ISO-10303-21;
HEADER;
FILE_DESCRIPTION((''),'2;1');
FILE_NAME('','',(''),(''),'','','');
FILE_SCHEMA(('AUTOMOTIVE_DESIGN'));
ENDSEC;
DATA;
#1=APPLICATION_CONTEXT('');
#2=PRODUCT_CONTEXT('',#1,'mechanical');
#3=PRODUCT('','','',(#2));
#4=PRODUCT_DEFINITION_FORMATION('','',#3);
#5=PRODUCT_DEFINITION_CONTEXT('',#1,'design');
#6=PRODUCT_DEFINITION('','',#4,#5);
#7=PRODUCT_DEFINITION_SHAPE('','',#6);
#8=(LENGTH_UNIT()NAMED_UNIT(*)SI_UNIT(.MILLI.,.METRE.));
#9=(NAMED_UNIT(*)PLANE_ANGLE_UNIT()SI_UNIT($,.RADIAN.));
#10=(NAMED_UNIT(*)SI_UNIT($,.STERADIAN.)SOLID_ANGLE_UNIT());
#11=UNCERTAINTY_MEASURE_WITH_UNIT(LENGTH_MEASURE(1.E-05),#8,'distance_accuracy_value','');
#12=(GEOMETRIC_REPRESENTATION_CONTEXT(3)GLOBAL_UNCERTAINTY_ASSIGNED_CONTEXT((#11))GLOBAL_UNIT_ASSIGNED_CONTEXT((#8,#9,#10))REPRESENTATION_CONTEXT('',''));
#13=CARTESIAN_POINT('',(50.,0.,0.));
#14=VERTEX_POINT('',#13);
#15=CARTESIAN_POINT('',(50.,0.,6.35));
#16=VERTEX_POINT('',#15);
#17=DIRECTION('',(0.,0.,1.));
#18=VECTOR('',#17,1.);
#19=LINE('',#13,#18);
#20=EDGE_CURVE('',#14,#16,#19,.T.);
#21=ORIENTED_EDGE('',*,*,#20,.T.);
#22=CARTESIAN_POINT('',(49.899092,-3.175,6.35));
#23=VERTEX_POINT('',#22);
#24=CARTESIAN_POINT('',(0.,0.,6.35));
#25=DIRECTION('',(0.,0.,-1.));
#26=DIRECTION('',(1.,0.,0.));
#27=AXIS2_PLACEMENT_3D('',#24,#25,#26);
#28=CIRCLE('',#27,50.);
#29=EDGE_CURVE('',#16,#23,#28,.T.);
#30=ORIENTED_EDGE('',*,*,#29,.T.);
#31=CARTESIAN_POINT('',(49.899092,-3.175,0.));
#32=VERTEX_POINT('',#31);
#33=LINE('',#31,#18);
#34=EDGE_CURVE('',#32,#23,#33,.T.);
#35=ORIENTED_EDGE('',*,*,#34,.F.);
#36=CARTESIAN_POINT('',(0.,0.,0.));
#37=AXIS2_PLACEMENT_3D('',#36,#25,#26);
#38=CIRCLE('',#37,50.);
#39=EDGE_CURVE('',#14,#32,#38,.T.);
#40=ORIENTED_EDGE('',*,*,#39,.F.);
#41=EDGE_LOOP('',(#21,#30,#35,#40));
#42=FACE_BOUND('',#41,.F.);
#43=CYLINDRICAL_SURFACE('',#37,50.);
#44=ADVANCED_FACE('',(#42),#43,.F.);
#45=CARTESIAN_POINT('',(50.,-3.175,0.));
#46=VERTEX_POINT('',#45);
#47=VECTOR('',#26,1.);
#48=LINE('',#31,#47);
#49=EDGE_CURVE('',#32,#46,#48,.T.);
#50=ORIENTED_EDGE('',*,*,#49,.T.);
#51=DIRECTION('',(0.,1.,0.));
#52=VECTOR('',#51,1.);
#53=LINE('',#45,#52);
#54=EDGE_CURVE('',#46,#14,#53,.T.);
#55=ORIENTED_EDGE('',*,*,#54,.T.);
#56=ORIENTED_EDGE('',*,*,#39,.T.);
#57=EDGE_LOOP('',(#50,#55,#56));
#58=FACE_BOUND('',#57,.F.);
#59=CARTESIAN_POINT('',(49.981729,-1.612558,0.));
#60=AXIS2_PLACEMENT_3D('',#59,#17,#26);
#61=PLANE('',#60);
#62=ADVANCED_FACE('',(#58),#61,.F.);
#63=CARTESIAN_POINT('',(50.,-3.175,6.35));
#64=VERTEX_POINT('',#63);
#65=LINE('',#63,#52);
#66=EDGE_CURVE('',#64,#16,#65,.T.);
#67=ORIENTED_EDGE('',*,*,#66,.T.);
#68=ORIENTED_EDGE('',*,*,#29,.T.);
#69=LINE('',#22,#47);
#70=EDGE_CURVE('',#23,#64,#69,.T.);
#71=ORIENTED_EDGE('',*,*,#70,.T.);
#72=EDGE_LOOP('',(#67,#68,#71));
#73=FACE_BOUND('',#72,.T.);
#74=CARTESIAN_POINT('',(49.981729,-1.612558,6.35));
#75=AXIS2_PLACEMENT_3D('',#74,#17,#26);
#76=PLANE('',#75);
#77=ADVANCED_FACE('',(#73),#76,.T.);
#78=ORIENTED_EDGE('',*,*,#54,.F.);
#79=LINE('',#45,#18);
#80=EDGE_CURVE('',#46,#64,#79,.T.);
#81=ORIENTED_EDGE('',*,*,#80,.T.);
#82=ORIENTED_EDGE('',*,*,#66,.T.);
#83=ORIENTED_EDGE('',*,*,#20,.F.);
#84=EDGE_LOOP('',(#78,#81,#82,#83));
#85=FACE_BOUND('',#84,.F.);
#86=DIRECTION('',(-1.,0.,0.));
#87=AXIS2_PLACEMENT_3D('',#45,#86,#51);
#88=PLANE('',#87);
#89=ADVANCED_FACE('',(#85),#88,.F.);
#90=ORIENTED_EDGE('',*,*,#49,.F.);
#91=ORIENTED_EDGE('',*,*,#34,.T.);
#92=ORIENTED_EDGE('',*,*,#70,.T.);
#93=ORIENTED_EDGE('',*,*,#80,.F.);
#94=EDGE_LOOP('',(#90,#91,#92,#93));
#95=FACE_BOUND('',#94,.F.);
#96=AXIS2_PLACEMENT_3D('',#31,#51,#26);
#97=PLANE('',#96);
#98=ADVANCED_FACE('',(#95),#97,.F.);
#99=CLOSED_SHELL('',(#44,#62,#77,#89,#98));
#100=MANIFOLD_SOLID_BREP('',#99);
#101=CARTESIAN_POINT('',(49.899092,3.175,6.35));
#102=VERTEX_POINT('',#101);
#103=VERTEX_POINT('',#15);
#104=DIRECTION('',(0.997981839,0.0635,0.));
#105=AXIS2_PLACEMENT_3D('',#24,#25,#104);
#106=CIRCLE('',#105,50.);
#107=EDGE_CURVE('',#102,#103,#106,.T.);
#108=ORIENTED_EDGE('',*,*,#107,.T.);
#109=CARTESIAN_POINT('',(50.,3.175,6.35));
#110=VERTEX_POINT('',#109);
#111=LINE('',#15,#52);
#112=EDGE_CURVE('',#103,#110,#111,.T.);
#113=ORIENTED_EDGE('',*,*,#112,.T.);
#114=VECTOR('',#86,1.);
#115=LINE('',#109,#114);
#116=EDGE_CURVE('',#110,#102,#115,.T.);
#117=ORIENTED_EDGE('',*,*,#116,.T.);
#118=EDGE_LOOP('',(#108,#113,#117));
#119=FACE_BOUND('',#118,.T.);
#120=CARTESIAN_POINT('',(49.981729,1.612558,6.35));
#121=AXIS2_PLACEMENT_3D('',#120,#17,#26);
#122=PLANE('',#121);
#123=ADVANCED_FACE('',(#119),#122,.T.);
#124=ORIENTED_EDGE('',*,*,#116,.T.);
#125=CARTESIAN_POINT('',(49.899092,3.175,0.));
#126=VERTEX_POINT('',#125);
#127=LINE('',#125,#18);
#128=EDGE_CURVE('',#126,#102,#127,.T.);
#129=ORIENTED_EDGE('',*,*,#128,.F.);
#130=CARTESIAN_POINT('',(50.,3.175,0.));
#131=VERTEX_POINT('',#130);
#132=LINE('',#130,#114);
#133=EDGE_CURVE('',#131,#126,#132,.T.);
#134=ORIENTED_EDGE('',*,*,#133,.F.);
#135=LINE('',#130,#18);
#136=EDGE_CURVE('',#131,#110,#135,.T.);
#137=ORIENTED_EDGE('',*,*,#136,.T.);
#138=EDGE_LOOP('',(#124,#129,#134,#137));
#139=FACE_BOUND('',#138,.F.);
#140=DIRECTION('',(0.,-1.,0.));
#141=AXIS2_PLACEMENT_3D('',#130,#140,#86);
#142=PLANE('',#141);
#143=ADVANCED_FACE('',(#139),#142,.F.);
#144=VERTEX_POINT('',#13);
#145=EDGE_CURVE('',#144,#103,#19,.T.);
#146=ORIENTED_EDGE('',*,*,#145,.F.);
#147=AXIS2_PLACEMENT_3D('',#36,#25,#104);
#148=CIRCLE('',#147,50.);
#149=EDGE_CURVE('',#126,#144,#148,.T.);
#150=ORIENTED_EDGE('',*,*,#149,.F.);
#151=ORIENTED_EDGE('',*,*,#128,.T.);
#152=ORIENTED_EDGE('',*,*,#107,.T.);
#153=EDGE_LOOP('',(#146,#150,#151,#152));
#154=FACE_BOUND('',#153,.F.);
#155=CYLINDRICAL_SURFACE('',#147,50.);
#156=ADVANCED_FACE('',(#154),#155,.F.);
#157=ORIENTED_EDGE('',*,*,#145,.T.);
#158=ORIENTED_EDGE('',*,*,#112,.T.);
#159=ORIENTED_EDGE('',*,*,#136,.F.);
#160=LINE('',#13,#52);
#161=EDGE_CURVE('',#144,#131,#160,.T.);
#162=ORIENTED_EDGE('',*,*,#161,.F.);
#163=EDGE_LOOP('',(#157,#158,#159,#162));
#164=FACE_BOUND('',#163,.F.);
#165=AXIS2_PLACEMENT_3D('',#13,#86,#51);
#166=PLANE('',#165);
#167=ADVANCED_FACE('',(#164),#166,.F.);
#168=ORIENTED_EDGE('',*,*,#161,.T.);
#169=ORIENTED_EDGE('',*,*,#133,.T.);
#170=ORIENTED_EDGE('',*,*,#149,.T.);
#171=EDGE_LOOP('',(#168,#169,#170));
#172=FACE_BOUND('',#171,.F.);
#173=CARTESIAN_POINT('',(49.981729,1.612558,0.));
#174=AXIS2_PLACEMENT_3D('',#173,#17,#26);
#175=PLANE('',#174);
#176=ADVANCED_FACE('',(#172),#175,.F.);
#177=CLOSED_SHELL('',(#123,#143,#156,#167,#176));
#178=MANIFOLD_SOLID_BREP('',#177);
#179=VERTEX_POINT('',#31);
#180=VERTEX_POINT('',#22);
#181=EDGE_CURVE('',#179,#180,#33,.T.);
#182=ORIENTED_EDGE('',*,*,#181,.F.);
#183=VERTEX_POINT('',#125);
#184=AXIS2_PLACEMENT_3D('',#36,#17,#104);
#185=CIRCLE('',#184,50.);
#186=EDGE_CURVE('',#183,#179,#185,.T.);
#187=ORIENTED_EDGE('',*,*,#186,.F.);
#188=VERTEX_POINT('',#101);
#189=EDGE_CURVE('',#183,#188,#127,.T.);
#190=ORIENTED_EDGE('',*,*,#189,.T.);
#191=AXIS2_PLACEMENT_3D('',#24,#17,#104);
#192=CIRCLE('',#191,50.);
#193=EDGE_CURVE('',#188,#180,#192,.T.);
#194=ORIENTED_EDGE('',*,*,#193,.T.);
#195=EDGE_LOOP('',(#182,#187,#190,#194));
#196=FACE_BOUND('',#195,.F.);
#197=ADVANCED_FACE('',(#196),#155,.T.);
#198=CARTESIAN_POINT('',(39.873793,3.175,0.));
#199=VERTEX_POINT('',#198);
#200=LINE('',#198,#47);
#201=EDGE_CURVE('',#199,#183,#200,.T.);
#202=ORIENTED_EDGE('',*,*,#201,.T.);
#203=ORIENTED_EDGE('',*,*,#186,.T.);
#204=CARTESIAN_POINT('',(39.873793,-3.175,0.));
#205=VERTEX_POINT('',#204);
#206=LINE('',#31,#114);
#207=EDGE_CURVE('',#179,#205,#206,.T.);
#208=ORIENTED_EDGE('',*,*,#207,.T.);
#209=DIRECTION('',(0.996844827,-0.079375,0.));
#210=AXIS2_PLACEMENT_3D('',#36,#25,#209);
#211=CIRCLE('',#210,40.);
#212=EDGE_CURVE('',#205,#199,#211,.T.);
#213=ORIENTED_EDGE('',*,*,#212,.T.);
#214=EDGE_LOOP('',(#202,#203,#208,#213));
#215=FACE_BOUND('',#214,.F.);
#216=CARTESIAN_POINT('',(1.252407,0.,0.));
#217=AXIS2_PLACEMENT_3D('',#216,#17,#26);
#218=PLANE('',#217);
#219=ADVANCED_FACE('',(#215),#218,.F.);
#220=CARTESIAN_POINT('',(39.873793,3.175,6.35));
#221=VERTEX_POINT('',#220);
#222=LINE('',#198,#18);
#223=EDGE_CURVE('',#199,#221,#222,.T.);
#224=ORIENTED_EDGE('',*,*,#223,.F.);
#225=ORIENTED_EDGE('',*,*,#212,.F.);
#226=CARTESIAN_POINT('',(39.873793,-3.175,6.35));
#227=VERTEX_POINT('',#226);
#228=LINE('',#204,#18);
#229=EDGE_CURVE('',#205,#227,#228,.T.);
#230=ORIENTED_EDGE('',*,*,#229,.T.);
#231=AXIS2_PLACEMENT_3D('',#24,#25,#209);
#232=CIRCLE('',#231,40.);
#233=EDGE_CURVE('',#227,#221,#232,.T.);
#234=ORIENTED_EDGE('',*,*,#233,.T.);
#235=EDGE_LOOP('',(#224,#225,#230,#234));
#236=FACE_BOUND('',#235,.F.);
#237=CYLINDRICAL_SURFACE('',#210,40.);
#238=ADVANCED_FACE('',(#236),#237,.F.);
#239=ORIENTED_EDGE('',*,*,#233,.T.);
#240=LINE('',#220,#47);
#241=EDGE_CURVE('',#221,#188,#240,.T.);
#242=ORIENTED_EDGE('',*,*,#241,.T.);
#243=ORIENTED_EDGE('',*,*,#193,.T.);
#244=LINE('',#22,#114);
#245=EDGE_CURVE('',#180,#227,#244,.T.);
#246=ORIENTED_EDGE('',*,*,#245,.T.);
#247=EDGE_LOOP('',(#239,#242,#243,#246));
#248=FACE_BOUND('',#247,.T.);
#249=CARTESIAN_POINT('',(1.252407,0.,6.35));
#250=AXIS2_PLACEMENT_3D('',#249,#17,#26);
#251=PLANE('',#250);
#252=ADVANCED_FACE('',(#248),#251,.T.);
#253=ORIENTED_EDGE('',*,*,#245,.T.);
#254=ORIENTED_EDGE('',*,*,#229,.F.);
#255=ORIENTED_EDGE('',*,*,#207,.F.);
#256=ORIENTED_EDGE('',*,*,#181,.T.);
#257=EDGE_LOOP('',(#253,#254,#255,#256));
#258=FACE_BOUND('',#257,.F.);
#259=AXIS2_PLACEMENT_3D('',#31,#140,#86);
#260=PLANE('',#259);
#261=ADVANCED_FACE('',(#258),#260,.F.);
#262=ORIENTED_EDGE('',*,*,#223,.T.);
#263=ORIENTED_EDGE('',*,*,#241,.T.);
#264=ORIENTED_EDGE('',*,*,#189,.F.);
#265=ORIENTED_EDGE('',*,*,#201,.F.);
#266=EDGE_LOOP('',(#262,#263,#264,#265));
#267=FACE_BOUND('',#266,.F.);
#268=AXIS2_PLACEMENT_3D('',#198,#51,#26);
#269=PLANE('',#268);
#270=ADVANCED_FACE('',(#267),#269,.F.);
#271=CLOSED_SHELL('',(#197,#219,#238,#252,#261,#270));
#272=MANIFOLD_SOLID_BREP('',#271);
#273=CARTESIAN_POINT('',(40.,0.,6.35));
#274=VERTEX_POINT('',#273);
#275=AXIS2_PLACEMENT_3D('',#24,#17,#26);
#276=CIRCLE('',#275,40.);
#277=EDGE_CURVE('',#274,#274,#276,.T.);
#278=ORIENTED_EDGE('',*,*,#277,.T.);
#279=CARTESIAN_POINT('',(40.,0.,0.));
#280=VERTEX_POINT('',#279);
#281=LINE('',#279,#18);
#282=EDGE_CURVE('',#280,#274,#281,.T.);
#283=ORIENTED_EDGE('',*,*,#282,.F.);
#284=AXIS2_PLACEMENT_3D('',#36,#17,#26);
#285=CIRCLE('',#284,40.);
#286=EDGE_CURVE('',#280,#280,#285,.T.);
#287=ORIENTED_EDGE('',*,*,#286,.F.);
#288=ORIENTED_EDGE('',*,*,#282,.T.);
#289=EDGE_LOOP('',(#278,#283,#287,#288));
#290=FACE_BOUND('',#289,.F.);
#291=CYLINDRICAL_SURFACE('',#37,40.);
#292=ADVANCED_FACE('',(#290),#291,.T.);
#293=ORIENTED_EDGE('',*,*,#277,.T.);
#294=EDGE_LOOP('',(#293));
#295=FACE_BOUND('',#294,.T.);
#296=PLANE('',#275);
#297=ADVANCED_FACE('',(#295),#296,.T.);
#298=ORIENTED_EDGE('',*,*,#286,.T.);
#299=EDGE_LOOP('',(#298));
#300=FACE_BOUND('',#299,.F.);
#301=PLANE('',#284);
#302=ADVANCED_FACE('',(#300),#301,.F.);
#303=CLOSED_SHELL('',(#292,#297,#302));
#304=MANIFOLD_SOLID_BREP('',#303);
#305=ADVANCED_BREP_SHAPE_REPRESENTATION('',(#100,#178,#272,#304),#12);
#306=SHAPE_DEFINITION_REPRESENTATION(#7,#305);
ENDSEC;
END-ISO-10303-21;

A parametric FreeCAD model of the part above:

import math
import FreeCAD as App
import Part
import Sketcher

doc = App.newDocument("Part")
body = doc.addObject("PartDesign::Body", "Body")

# Sketch on XY plane
sketch1 = body.newObject("Sketcher::SketchObject", "Sketch")
sketch1.AttachmentSupport = (doc.getObject("XY_Plane"), [""])
sketch1.MapMode = "FlatFace"
sketch1.addGeometry(Part.Circle(App.Vector(0, 0, 0), App.Vector(0, 0, 1), 40), False)
sketch1.addConstraint(Sketcher.Constraint("Coincident", 0, 3, -1, 1))
sketch1.addConstraint(Sketcher.Constraint("Diameter", 0, 80.0))
pad1 = body.newObject("PartDesign::Pad", "Pad")
pad1.Profile = sketch1
pad1.Length = 6.35
body2 = doc.addObject("PartDesign::Body", "Body001")

# Sketch on XY plane
sketch2 = body2.newObject("Sketcher::SketchObject", "Sketch001")
sketch2.AttachmentSupport = (doc.getObject("XY_Plane001"), [""])
sketch2.MapMode = "FlatFace"
sketch2.addGeometry(Part.LineSegment(App.Vector(50, 3.17, 0), App.Vector(49.9, 3.17, 0)), False)
sketch2.addGeometry(Part.ArcOfCircle(Part.Circle(App.Vector(0, 0, 0), App.Vector(0, 0, 1), 50), math.radians(0), math.radians(3.64)), False)
sketch2.addGeometry(Part.LineSegment(App.Vector(50, 0, 0), App.Vector(50, 3.17, 0)), False)
sketch2.addConstraint(Sketcher.Constraint("Coincident", 0, 2, 1, 2))
sketch2.addConstraint(Sketcher.Constraint("Tangent", 1, 1, 2, 1))
sketch2.addConstraint(Sketcher.Constraint("Coincident", 2, 2, 0, 1))
sketch2.addConstraint(Sketcher.Constraint("Horizontal", 0))
sketch2.addConstraint(Sketcher.Constraint("Vertical", 2))
sketch2.addConstraint(Sketcher.Constraint("Coincident", 1, 3, -1, 1))
sketch2.addConstraint(Sketcher.Constraint("Radius", 1, 50.0))
sketch2.addConstraint(Sketcher.Constraint("DistanceY", 2, 1, 2, 2, 3.175))
pad2 = body2.newObject("PartDesign::Pad", "Pad001")
pad2.Profile = sketch2
pad2.Length = 6.35
body3 = doc.addObject("PartDesign::Body", "Body002")

# Sketch on XY plane
sketch3 = body3.newObject("Sketcher::SketchObject", "Sketch002")
sketch3.AttachmentSupport = (doc.getObject("XY_Plane002"), [""])
sketch3.MapMode = "FlatFace"
sketch3.addGeometry(Part.ArcOfCircle(Part.Circle(App.Vector(0, 0, 0), App.Vector(0, 0, 1), 50), math.radians(-3.64), math.radians(0)), False)
sketch3.addGeometry(Part.LineSegment(App.Vector(49.9, -3.17, 0), App.Vector(50, -3.17, 0)), False)
sketch3.addGeometry(Part.LineSegment(App.Vector(50, -3.17, 0), App.Vector(50, 0, 0)), False)
sketch3.addConstraint(Sketcher.Constraint("Coincident", 0, 1, 1, 1))
sketch3.addConstraint(Sketcher.Constraint("Coincident", 1, 2, 2, 1))
sketch3.addConstraint(Sketcher.Constraint("Tangent", 2, 2, 0, 2))
sketch3.addConstraint(Sketcher.Constraint("Horizontal", 1))
sketch3.addConstraint(Sketcher.Constraint("Vertical", 2))
sketch3.addConstraint(Sketcher.Constraint("Coincident", 0, 3, -1, 1))
sketch3.addConstraint(Sketcher.Constraint("Radius", 0, 50.0))
sketch3.addConstraint(Sketcher.Constraint("DistanceY", 2, 1, 2, 2, 3.175))
pad3 = body3.newObject("PartDesign::Pad", "Pad002")
pad3.Profile = sketch3
pad3.Length = 6.35
body4 = doc.addObject("PartDesign::Body", "Body003")

# Sketch on XY plane
sketch4 = body4.newObject("Sketcher::SketchObject", "Sketch003")
sketch4.AttachmentSupport = (doc.getObject("XY_Plane003"), [""])
sketch4.MapMode = "FlatFace"
sketch4.addGeometry(Part.ArcOfCircle(Part.Circle(App.Vector(0, 0, 0), App.Vector(0, 0, 1), 40), math.radians(5), math.radians(355)), False)
sketch4.addGeometry(Part.LineSegment(App.Vector(40, 3, 0), App.Vector(50, 3, 0)), False)
sketch4.addGeometry(Part.ArcOfCircle(Part.Circle(App.Vector(0, 0, 0), App.Vector(0, 0, 1), 50), math.radians(4), math.radians(356)), False)
sketch4.addGeometry(Part.LineSegment(App.Vector(50, -3, 0), App.Vector(40, -3, 0)), False)
sketch4.addConstraint(Sketcher.Constraint("Coincident", 0, 1, 1, 1))
sketch4.addConstraint(Sketcher.Constraint("Coincident", 1, 2, 2, 1))
sketch4.addConstraint(Sketcher.Constraint("Coincident", 2, 2, 3, 1))
sketch4.addConstraint(Sketcher.Constraint("Coincident", 3, 2, 0, 2))
sketch4.addConstraint(Sketcher.Constraint("Horizontal", 1))
sketch4.addConstraint(Sketcher.Constraint("Horizontal", 3))
sketch4.addConstraint(Sketcher.Constraint("Coincident", 0, 3, -1, 1))
sketch4.addConstraint(Sketcher.Constraint("Coincident", 2, 3, -1, 1))
sketch4.addConstraint(Sketcher.Constraint("Vertical", 1, 2, 2, 2))
sketch4.addConstraint(Sketcher.Constraint("Radius", 0, 40.0))
sketch4.addConstraint(Sketcher.Constraint("Radius", 2, 50.0))
sketch4.addConstraint(Sketcher.Constraint("DistanceY", 2, 2, 1, 2, 6.35))
pad4 = body4.newObject("PartDesign::Pad", "Pad003")
pad4.Profile = sketch4
pad4.Length = 6.35

doc.recompute()
